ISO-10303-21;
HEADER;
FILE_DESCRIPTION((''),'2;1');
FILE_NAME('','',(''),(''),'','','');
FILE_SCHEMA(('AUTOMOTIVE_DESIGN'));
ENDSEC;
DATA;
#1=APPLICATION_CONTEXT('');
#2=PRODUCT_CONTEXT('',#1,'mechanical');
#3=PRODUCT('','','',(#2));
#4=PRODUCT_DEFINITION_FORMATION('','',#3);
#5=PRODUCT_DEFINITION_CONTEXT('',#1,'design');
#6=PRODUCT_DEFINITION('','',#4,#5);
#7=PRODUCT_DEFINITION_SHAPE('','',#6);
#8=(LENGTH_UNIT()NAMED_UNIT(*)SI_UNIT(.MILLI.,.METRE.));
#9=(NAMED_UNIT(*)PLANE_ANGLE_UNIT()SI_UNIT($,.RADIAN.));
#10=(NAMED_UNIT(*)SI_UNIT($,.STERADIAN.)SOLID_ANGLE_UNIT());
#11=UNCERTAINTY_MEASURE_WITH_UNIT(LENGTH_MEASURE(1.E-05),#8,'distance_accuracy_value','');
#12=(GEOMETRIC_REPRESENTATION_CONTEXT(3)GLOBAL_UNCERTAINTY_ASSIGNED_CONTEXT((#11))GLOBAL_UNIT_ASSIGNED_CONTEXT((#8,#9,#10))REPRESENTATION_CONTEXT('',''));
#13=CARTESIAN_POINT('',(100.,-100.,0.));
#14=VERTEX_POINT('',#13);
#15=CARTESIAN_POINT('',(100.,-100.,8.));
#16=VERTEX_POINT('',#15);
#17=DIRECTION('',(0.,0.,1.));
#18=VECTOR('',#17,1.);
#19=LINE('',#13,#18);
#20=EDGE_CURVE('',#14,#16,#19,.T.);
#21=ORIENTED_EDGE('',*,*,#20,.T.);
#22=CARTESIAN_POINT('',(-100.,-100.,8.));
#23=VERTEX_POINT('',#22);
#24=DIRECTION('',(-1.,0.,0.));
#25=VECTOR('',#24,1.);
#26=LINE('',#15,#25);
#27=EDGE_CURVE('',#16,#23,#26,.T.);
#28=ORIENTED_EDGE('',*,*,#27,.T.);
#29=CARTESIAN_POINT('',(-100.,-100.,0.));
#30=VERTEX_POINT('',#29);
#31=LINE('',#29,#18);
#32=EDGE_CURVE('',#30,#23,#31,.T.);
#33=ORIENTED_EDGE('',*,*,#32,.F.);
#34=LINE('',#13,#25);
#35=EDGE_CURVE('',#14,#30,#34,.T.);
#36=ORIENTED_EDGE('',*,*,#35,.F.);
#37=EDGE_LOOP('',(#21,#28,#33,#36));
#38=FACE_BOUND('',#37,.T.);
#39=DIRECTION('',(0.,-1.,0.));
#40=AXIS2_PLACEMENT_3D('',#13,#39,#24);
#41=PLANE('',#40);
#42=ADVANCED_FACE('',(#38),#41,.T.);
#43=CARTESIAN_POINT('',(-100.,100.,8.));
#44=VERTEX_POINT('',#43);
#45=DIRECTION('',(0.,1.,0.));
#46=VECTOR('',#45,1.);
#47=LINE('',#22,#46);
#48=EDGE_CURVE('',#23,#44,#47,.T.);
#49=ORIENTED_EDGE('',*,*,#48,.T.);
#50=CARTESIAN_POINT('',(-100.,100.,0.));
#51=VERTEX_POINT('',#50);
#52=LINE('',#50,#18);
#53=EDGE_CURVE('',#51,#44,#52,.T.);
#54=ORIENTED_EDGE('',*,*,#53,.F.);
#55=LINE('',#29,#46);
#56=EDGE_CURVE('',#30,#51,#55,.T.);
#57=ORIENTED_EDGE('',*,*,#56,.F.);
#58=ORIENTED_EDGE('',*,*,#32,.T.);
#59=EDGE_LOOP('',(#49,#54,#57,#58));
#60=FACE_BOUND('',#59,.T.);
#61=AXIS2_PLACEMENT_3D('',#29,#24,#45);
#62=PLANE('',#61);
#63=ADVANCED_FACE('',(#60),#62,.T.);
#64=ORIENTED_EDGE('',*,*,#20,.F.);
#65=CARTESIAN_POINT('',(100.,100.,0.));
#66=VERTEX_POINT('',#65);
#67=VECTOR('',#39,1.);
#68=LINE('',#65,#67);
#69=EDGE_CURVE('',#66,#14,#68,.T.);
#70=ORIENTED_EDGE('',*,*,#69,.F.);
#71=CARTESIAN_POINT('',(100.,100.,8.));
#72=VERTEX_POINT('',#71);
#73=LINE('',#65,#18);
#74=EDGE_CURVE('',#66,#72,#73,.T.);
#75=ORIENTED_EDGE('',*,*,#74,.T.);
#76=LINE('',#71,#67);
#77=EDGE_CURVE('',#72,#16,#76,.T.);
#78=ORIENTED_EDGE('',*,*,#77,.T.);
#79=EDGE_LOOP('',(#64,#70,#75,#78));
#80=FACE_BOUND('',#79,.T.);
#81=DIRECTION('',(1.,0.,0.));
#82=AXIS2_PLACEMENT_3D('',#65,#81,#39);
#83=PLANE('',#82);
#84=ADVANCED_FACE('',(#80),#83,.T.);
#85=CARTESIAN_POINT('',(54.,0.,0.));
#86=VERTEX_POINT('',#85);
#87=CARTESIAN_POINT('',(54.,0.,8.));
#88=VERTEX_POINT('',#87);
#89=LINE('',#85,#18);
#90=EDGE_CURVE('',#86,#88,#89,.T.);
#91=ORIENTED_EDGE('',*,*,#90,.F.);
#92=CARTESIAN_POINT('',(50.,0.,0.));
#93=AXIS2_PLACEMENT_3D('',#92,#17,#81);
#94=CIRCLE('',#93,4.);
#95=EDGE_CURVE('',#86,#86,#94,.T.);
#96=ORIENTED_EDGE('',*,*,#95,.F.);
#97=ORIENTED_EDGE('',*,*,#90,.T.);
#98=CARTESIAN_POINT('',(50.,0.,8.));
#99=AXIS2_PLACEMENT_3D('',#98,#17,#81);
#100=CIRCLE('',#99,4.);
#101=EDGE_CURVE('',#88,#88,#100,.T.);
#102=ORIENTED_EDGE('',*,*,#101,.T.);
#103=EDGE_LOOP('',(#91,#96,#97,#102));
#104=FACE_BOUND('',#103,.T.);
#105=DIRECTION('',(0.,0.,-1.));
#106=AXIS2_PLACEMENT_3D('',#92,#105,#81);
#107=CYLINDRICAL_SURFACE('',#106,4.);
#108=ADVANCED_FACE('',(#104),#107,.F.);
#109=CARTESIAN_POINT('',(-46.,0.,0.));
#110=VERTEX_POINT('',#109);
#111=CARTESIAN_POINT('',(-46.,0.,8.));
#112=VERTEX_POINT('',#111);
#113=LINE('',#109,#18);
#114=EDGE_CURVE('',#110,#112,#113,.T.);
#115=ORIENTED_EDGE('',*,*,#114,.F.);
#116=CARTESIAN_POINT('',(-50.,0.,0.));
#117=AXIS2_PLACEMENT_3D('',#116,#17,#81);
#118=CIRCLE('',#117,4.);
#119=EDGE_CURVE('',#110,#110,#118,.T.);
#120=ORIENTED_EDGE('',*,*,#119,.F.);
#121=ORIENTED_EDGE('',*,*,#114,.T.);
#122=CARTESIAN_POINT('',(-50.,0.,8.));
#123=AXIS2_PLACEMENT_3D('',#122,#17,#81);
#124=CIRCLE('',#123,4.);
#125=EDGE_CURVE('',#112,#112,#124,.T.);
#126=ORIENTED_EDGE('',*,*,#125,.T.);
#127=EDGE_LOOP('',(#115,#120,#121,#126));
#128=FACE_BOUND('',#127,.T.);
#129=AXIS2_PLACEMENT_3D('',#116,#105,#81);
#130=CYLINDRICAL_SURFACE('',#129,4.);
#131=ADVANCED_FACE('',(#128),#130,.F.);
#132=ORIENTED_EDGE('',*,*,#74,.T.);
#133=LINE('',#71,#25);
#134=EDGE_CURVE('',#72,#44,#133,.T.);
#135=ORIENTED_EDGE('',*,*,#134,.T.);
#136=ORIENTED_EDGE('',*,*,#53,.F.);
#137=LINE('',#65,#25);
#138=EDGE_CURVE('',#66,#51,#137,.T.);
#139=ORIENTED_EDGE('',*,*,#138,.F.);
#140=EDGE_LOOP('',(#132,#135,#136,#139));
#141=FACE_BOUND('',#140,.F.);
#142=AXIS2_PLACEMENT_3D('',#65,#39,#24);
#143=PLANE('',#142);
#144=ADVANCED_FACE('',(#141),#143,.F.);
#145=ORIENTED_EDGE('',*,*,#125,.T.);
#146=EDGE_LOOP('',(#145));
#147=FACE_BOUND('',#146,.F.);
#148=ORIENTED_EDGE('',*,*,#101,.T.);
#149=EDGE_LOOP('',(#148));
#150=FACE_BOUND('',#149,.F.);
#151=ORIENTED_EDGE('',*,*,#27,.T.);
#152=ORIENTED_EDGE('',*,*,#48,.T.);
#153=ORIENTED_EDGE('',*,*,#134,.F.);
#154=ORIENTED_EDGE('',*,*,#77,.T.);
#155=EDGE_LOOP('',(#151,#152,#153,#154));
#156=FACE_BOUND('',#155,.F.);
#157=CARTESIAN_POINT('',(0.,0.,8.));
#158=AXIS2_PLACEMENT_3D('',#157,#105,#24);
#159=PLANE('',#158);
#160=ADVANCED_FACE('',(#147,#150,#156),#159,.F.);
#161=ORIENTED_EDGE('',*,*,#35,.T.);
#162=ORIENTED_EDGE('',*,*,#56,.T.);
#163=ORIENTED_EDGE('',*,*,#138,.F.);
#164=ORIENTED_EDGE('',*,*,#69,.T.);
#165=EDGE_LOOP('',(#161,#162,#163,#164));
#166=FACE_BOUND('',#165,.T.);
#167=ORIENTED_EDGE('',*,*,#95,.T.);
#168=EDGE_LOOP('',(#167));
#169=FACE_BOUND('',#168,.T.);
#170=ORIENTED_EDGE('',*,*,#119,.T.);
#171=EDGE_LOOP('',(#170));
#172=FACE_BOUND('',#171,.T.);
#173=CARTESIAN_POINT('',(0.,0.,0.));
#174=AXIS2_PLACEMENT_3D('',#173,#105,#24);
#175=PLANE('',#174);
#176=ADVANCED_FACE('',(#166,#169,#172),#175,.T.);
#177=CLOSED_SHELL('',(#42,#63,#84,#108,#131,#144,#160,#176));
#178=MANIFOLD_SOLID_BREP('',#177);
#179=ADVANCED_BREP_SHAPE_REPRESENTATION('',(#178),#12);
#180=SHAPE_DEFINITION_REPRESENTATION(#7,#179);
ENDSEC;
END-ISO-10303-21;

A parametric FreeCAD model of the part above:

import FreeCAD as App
import Part
import Sketcher
from FreeCAD import Vector
Q = App.Units.Quantity


def add_polygon(sketch, points):
    """Adds a closed chain of lines whose ends are joined by coincident constraints."""
    first, n = sketch.GeometryCount, len(points)
    for a, b in zip(points, points[1:] + points[:1]):
        sketch.addGeometry(Part.LineSegment(App.Vector(*a, 0), App.Vector(*b, 0)), False)
    for i in range(n):
        sketch.addConstraint(Sketcher.Constraint("Coincident", first + i, 2, first + (i + 1) % n, 1))

doc = App.newDocument("Part")
body = doc.addObject("PartDesign::Body", "Body")

sketch1 = doc.addObject("Sketcher::SketchObject", "Sketch")
body.addObject(sketch1)
sketch1.AttachmentSupport = (doc.XY_Plane, [""])
sketch1.MapMode = "FlatFace"
add_polygon(sketch1, [(100, 100), (-100, 100), (-100, -100), (100, -100)])
sketch1.addGeometry(Part.Circle(Vector(50, 0, 0), Vector(0, 0, 1), 4), False)
sketch1.addGeometry(Part.Circle(Vector(-50, 0, 0), Vector(0, 0, 1), 4), False)
sketch1.addConstraint([
    Sketcher.Constraint("Horizontal", 0),
    Sketcher.Constraint("Vertical", 1),
    Sketcher.Constraint("Horizontal", 2),
    Sketcher.Constraint("Vertical", 3),
    Sketcher.Constraint("Equal", 4, 5),
    Sketcher.Constraint("Symmetric", 4, 3, 5, 3, -1, 1),
    Sketcher.Constraint("Symmetric", 0, 2, 2, 2, -1, 1),
    Sketcher.Constraint("PointOnObject", 4, 3, -1),
    Sketcher.Constraint("Equal", 2, 1),
    Sketcher.Constraint("Diameter", 4, Q("8 mm")),
    Sketcher.Constraint("DistanceX", 0, 2, 0, 1, Q("200 mm")),
    Sketcher.Constraint("DistanceX", -1, 1, 4, 3, Q("50 mm")),
])
pad1 = doc.addObject("PartDesign::Pad", "Pad")
body.addObject(pad1)
pad1.Profile = sketch1
pad1.Length = 8

doc.recompute()
